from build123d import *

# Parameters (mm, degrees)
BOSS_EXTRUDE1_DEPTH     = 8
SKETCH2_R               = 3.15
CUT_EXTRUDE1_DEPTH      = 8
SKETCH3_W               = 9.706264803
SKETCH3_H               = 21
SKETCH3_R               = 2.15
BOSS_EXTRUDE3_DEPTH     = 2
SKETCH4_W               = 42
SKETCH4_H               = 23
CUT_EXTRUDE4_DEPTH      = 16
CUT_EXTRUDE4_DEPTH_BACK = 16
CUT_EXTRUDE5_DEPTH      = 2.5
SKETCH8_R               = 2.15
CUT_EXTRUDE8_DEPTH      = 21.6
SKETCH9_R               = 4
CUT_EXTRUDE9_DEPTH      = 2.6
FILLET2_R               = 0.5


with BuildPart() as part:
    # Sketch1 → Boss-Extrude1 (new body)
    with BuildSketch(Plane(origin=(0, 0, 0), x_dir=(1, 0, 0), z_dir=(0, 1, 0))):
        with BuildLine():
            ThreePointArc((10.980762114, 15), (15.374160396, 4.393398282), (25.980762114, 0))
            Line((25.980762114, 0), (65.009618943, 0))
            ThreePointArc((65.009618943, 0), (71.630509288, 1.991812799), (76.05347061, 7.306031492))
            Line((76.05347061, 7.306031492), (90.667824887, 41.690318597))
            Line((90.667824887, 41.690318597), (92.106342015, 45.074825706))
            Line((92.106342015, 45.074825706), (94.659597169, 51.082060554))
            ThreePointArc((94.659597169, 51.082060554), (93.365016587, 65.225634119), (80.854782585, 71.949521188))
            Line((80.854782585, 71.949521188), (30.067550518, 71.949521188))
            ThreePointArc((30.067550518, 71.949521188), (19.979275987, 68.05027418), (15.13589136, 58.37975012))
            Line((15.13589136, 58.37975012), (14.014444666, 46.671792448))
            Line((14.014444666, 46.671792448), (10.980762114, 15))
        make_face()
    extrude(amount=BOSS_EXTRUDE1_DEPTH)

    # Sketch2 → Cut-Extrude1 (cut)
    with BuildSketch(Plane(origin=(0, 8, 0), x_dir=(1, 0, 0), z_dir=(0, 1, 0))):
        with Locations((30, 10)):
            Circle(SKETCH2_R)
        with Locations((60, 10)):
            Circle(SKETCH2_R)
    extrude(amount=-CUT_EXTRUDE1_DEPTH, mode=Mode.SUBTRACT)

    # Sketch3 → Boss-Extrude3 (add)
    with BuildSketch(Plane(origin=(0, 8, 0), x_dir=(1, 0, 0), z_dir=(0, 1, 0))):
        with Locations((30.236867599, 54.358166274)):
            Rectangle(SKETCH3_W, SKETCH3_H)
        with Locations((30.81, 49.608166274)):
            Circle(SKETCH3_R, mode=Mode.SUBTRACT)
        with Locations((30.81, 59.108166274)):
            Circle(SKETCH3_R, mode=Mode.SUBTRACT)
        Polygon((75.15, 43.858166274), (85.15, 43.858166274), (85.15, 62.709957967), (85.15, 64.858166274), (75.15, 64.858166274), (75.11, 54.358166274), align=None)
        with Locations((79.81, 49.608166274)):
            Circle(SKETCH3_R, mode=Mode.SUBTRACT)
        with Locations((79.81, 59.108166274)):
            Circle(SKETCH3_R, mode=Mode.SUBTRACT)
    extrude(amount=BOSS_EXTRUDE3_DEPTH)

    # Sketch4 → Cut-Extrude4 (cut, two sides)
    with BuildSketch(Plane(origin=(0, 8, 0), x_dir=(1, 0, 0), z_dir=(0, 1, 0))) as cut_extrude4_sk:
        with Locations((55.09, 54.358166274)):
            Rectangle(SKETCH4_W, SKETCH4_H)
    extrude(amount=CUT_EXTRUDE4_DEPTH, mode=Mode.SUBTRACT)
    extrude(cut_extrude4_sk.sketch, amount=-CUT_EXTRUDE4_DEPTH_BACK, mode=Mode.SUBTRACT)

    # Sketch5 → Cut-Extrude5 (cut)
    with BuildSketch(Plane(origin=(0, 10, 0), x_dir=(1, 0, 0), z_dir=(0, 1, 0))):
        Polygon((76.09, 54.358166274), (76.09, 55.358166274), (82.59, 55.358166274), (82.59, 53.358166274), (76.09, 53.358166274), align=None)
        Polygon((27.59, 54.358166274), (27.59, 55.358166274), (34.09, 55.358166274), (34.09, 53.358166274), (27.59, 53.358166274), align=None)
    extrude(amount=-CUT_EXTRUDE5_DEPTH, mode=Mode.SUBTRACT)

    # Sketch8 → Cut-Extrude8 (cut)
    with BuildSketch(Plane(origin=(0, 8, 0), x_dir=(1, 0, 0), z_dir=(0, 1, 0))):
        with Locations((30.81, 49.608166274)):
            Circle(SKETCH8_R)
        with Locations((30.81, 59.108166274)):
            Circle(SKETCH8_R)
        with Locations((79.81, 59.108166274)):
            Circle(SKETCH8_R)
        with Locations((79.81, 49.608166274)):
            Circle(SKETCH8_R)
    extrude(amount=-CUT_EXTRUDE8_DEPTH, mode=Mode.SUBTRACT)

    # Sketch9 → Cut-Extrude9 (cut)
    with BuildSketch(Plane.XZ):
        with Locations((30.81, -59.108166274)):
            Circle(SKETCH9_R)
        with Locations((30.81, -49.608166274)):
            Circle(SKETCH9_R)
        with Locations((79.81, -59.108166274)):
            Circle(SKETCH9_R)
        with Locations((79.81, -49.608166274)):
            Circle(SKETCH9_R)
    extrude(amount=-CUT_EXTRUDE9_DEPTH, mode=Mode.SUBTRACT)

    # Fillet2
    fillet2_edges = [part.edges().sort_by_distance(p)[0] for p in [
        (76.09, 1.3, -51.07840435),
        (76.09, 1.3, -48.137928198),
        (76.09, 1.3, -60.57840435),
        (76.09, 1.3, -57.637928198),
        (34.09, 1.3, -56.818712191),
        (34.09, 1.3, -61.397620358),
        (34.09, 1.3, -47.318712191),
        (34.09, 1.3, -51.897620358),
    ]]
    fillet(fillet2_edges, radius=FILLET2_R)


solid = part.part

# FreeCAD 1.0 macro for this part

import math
import FreeCAD as App
import Part
import Sketcher
Q = App.Units.Quantity


def edges_at(feature, points):
    """Names of the edges that pass closest to the given points."""
    edges = feature.Shape.Edges
    near = lambda p: min(range(len(edges)), key=lambda i: edges[i].distToShape(Part.Vertex(*p))[0])
    return sorted({f"Edge{near(p) + 1}" for p in points})

doc = App.newDocument("Part")
body = doc.addObject("PartDesign::Body", "Body")

# Sketch on XZ plane
sketch1 = body.newObject("Sketcher::SketchObject", "Sketch")
sketch1.AttachmentSupport = (doc.getObject("XZ_Plane"), [""])
sketch1.MapMode = "FlatFace"
sketch1.addGeometry([
    Part.ArcOfCircle(Part.Circle(App.Vector(26, -15, 0), App.Vector(0, 0, 1), 15), math.radians(90), math.radians(180)),  # 0
    Part.LineSegment(App.Vector(26, 0, 0), App.Vector(65, 0, 0)),  # 1
    Part.ArcOfCircle(Part.Circle(App.Vector(65, -12, 0), App.Vector(0, 0, 1), 12), math.radians(23), math.radians(90)),  # 2
    Part.LineSegment(App.Vector(76.1, -7.3, 0), App.Vector(90.7, -41.7, 0)),  # 3
    Part.LineSegment(App.Vector(90.7, -41.7, 0), App.Vector(92.1, -45.1, 0)),  # 4
    Part.LineSegment(App.Vector(92.1, -45.1, 0), App.Vector(94.7, -51.1, 0)),  # 5
    Part.ArcOfCircle(Part.Circle(App.Vector(80.9, -56.9, 0), App.Vector(0, 0, 1), 15), math.radians(-90), math.radians(23)),  # 6
    Part.LineSegment(App.Vector(80.9, -71.9, 0), App.Vector(30.1, -71.9, 0)),  # 7
    Part.ArcOfCircle(Part.Circle(App.Vector(30.1, -56.9, 0), App.Vector(0, 0, 1), 15), math.radians(-175), math.radians(-90)),  # 8
    Part.LineSegment(App.Vector(15.1, -58.4, 0), App.Vector(14, -46.7, 0)),  # 9
    Part.LineSegment(App.Vector(14, -46.7, 0), App.Vector(11, -15, 0)),  # 10
], False)
sketch1.addConstraint([
    Sketcher.Constraint("Tangent", 0, 1, 1, 1),
    Sketcher.Constraint("Tangent", 1, 2, 2, 2),
    Sketcher.Constraint("Tangent", 2, 1, 3, 1),
    Sketcher.Constraint("Coincident", 3, 2, 4, 1),
    Sketcher.Constraint("Coincident", 4, 2, 5, 1),
    Sketcher.Constraint("Tangent", 5, 2, 6, 2),
    Sketcher.Constraint("Tangent", 6, 1, 7, 1),
    Sketcher.Constraint("Tangent", 7, 2, 8, 2),
    Sketcher.Constraint("Tangent", 8, 1, 9, 1),
    Sketcher.Constraint("Coincident", 9, 2, 10, 1),
    Sketcher.Constraint("Coincident", 10, 2, 0, 2),
    Sketcher.Constraint("Horizontal", 1),
    Sketcher.Constraint("Horizontal", 7),
    Sketcher.Constraint("Equal", 0, 6),
    Sketcher.Constraint("Equal", 6, 8),
    Sketcher.Constraint("PointOnObject", 0, 1, -1),
    Sketcher.Constraint("Parallel", 3, 4),
    Sketcher.Constraint("Parallel", 4, 5),
    Sketcher.Constraint("Parallel", 9, 10),
    Sketcher.Constraint("Horizontal", 0, 3, 10, 2),
    Sketcher.Constraint("Radius", 0, Q("15 mm")),
    Sketcher.Constraint("Radius", 2, Q("12 mm")),
    Sketcher.Constraint("Distance", 3, Q("37.36119 mm")),
    Sketcher.Constraint("Distance", 4, Q("3.677529 mm")),
    Sketcher.Constraint("Distance", 10, Q("31.816751 mm")),
    Sketcher.Constraint("DistanceX", 1, 1, 1, 2, Q("39.028857 mm")),
    Sketcher.Constraint("DistanceX", 7, 2, 7, 1, Q("50.787232 mm")),
    Sketcher.Constraint("DistanceX", -1, 1, 2, 3, Q("65.009619 mm")),
    Sketcher.Constraint("DistanceY", 6, 3, -1, 1, Q("56.949521 mm")),
    Sketcher.Constraint("DistanceX", -1, 1, 8, 3, Q("30.067551 mm")),
])
pad1 = body.newObject("PartDesign::Pad", "Pad")
pad1.Profile = sketch1
pad1.Length = 8
pad1.Reversed = True

# Sketch on XZ plane
sketch2 = body.newObject("Sketcher::SketchObject", "Sketch001")
sketch2.AttachmentSupport = (doc.getObject("XZ_Plane"), [""])
sketch2.MapMode = "FlatFace"
sketch2.AttachmentOffset = App.Placement(App.Vector(0, 0, -8), App.Rotation())
sketch2.addGeometry([
    Part.Circle(App.Vector(30, -10, 0), App.Vector(0, 0, 1), 3.1),
    Part.Circle(App.Vector(60, -10, 0), App.Vector(0, 0, 1), 3.1),
], False)
sketch2.addConstraint([
    Sketcher.Constraint("Equal", 0, 1),
    Sketcher.Constraint("Horizontal", 0, 3, 1, 3),
    Sketcher.Constraint("Diameter", 0, Q("6.3 mm")),
    Sketcher.Constraint("DistanceX", -1, 1, 0, 3, Q("30 mm")),
    Sketcher.Constraint("DistanceY", 0, 3, -1, 1, Q("10 mm")),
    Sketcher.Constraint("DistanceX", -1, 1, 1, 3, Q("60 mm")),
])
pocket1 = body.newObject("PartDesign::Pocket", "Pocket")
pocket1.Profile = sketch2
pocket1.Length = 8
pocket1.Reversed = True

# Sketch on XZ plane
sketch3 = body.newObject("Sketcher::SketchObject", "Sketch002")
sketch3.AttachmentSupport = (doc.getObject("XZ_Plane"), [""])
sketch3.MapMode = "FlatFace"
sketch3.AttachmentOffset = App.Placement(App.Vector(0, 0, -8), App.Rotation())
sketch3.addGeometry([
    Part.LineSegment(App.Vector(25.4, -64.9, 0), App.Vector(25.4, -43.9, 0)),  # 0
    Part.LineSegment(App.Vector(25.4, -43.9, 0), App.Vector(35.1, -43.9, 0)),  # 1
    Part.LineSegment(App.Vector(35.1, -43.9, 0), App.Vector(35.1, -64.9, 0)),  # 2
    Part.LineSegment(App.Vector(35.1, -64.9, 0), App.Vector(25.4, -64.9, 0)),  # 3
    Part.Circle(App.Vector(30.8, -49.6, 0), App.Vector(0, 0, 1), 2.1),  # 4
    Part.Circle(App.Vector(30.8, -59.1, 0), App.Vector(0, 0, 1), 2.1),  # 5
    Part.LineSegment(App.Vector(75.2, -43.9, 0), App.Vector(85.2, -43.9, 0)),  # 6
    Part.LineSegment(App.Vector(85.2, -43.9, 0), App.Vector(85.2, -64.9, 0)),  # 7
    Part.LineSegment(App.Vector(85.2, -64.9, 0), App.Vector(75.2, -64.9, 0)),  # 8
    Part.LineSegment(App.Vector(75.2, -64.9, 0), App.Vector(75.1, -54.4, 0)),  # 9
    Part.LineSegment(App.Vector(75.1, -54.4, 0), App.Vector(75.2, -43.9, 0)),  # 10
    Part.Circle(App.Vector(79.8, -49.6, 0), App.Vector(0, 0, 1), 2.1),  # 11
    Part.Circle(App.Vector(79.8, -59.1, 0), App.Vector(0, 0, 1), 2.1),  # 12
], False)
sketch3.addConstraint([
    Sketcher.Constraint("Coincident", 0, 2, 1, 1),
    Sketcher.Constraint("Coincident", 1, 2, 2, 1),
    Sketcher.Constraint("Coincident", 2, 2, 3, 1),
    Sketcher.Constraint("Coincident", 3, 2, 0, 1),
    Sketcher.Constraint("Coincident", 6, 2, 7, 1),
    Sketcher.Constraint("Coincident", 7, 2, 8, 1),
    Sketcher.Constraint("Coincident", 8, 2, 9, 1),
    Sketcher.Constraint("Coincident", 9, 2, 10, 1),
    Sketcher.Constraint("Coincident", 10, 2, 6, 1),
    Sketcher.Constraint("Vertical", 0),
    Sketcher.Constraint("Horizontal", 1),
    Sketcher.Constraint("Vertical", 2),
    Sketcher.Constraint("Horizontal", 3),
    Sketcher.Constraint("Horizontal", 6),
    Sketcher.Constraint("Vertical", 7),
    Sketcher.Constraint("Horizontal", 8),
    Sketcher.Constraint("Equal", 4, 5),
    Sketcher.Constraint("Equal", 5, 11),
    Sketcher.Constraint("Equal", 11, 12),
    Sketcher.Constraint("Horizontal", 4, 3, 11, 3),
    Sketcher.Constraint("Horizontal", 5, 3, 12, 3),
    Sketcher.Constraint("Horizontal", 1, 2, 6, 2),
    Sketcher.Constraint("Horizontal", 3, 2, 7, 2),
    Sketcher.Constraint("Vertical", 4, 3, 5, 3),
    Sketcher.Constraint("Vertical", 11, 3, 12, 3),
    Sketcher.Constraint("Vertical", 8, 2, 10, 2),
    Sketcher.Constraint("Equal", 9, 10),
    Sketcher.Constraint("Diameter", 4, Q("4.3 mm")),
    Sketcher.Constraint("DistanceX", 6, 1, 6, 2, Q("10 mm")),
    Sketcher.Constraint("DistanceY", 0, 1, 0, 2, Q("21 mm")),
    Sketcher.Constraint("DistanceX", 4, 3, 11, 3, Q("49 mm")),
    Sketcher.Constraint("DistanceY", 5, 3, 4, 3, Q("9.5 mm")),
    Sketcher.Constraint("DistanceX", 9, 2, 11, 3, Q("4.7 mm")),
    Sketcher.Constraint("DistanceX", -1, 1, 4, 3, Q("30.81 mm")),
    Sketcher.Constraint("DistanceX", -1, 1, 1, 2, Q("35.09 mm")),
    Sketcher.Constraint("DistanceX", -1, 1, 6, 2, Q("85.15 mm")),
    Sketcher.Constraint("DistanceY", 4, 3, 0, 2, Q("5.75 mm")),
    Sketcher.Constraint("DistanceX", 1, 1, 1, 2, Q("9.706265 mm")),
    Sketcher.Constraint("DistanceY", 4, 3, -1, 1, Q("49.608166 mm")),
])
pad2 = body.newObject("PartDesign::Pad", "Pad001")
pad2.Profile = sketch3
pad2.Length = 2
pad2.Reversed = True

# Sketch on XZ plane
sketch4 = body.newObject("Sketcher::SketchObject", "Sketch003")
sketch4.AttachmentSupport = (doc.getObject("XZ_Plane"), [""])
sketch4.MapMode = "FlatFace"
sketch4.AttachmentOffset = App.Placement(App.Vector(0, 0, -8), App.Rotation())
sketch4.addGeometry([
    Part.LineSegment(App.Vector(34, -66, 0), App.Vector(34, -43, 0)),
    Part.LineSegment(App.Vector(34, -43, 0), App.Vector(76, -43, 0)),
    Part.LineSegment(App.Vector(76, -43, 0), App.Vector(76, -66, 0)),
    Part.LineSegment(App.Vector(76, -66, 0), App.Vector(34, -66, 0)),
], False)
sketch4.addConstraint([
    Sketcher.Constraint("Coincident", 0, 2, 1, 1),
    Sketcher.Constraint("Coincident", 1, 2, 2, 1),
    Sketcher.Constraint("Coincident", 2, 2, 3, 1),
    Sketcher.Constraint("Coincident", 3, 2, 0, 1),
    Sketcher.Constraint("Vertical", 0),
    Sketcher.Constraint("Horizontal", 1),
    Sketcher.Constraint("Vertical", 2),
    Sketcher.Constraint("Horizontal", 3),
    Sketcher.Constraint("DistanceX", 1, 1, 1, 2, Q("42 mm")),
    Sketcher.Constraint("DistanceY", 0, 1, 0, 2, Q("23 mm")),
    Sketcher.Constraint("DistanceX", -1, 1, 0, 2, Q("34.09 mm")),
    Sketcher.Constraint("DistanceY", 0, 2, -1, 1, Q("42.858166 mm")),
])
pocket2 = body.newObject("PartDesign::Pocket", "Pocket001")
pocket2.Profile = sketch4
pocket2.Type = "ThroughAll"
pocket2.Midplane = True

# Sketch on XZ plane
sketch5 = body.newObject("Sketcher::SketchObject", "Sketch004")
sketch5.AttachmentSupport = (doc.getObject("XZ_Plane"), [""])
sketch5.MapMode = "FlatFace"
sketch5.AttachmentOffset = App.Placement(App.Vector(0, 0, -10), App.Rotation())
sketch5.addGeometry([
    Part.LineSegment(App.Vector(76.1, -55.4, 0), App.Vector(76.1, -53.4, 0)),  # 0
    Part.LineSegment(App.Vector(76.1, -53.4, 0), App.Vector(82.6, -53.4, 0)),  # 1
    Part.LineSegment(App.Vector(82.6, -53.4, 0), App.Vector(82.6, -55.4, 0)),  # 2
    Part.LineSegment(App.Vector(82.6, -55.4, 0), App.Vector(76.1, -55.4, 0)),  # 3
    Part.LineSegment(App.Vector(27.6, -55.4, 0), App.Vector(27.6, -53.4, 0)),  # 4
    Part.LineSegment(App.Vector(27.6, -53.4, 0), App.Vector(34.1, -53.4, 0)),  # 5
    Part.LineSegment(App.Vector(34.1, -53.4, 0), App.Vector(34.1, -55.4, 0)),  # 6
    Part.LineSegment(App.Vector(34.1, -55.4, 0), App.Vector(27.6, -55.4, 0)),  # 7
], False)
sketch5.addConstraint([
    Sketcher.Constraint("Coincident", 0, 2, 1, 1),
    Sketcher.Constraint("Coincident", 1, 2, 2, 1),
    Sketcher.Constraint("Coincident", 2, 2, 3, 1),
    Sketcher.Constraint("Coincident", 3, 2, 0, 1),
    Sketcher.Constraint("Coincident", 4, 2, 5, 1),
    Sketcher.Constraint("Coincident", 5, 2, 6, 1),
    Sketcher.Constraint("Coincident", 6, 2, 7, 1),
    Sketcher.Constraint("Coincident", 7, 2, 4, 1),
    Sketcher.Constraint("Vertical", 0),
    Sketcher.Constraint("Horizontal", 1),
    Sketcher.Constraint("Vertical", 2),
    Sketcher.Constraint("Horizontal", 3),
    Sketcher.Constraint("Vertical", 4),
    Sketcher.Constraint("Horizontal", 5),
    Sketcher.Constraint("Vertical", 6),
    Sketcher.Constraint("Horizontal", 7),
    Sketcher.Constraint("Horizontal", 1, 2, 4, 2),
    Sketcher.Constraint("Horizontal", 3, 2, 6, 2),
    Sketcher.Constraint("Equal", 3, 5),
    Sketcher.Constraint("DistanceY", 0, 1, 0, 2, Q("2 mm")),
    Sketcher.Constraint("DistanceX", 1, 1, 1, 2, Q("6.5 mm")),
    Sketcher.Constraint("DistanceX", 4, 2, 1, 2, Q("55 mm")),
    Sketcher.Constraint("DistanceX", -1, 1, 0, 2, Q("76.09 mm")),
    Sketcher.Constraint("DistanceY", 0, 2, -1, 1, Q("53.358166 mm")),
])
pocket3 = body.newObject("PartDesign::Pocket", "Pocket002")
pocket3.Profile = sketch5
pocket3.Length = 2.5
pocket3.Reversed = True

# Sketch on XZ plane
sketch6 = body.newObject("Sketcher::SketchObject", "Sketch005")
sketch6.AttachmentSupport = (doc.getObject("XZ_Plane"), [""])
sketch6.MapMode = "FlatFace"
sketch6.AttachmentOffset = App.Placement(App.Vector(0, 0, -8), App.Rotation())
sketch6.addGeometry([
    Part.Circle(App.Vector(30.8, -49.6, 0), App.Vector(0, 0, 1), 2.1),
    Part.Circle(App.Vector(30.8, -59.1, 0), App.Vector(0, 0, 1), 2.1),
    Part.Circle(App.Vector(79.8, -59.1, 0), App.Vector(0, 0, 1), 2.1),
    Part.Circle(App.Vector(79.8, -49.6, 0), App.Vector(0, 0, 1), 2.1),
], False)
sketch6.addConstraint([
    Sketcher.Constraint("Equal", 0, 1),
    Sketcher.Constraint("Equal", 1, 2),
    Sketcher.Constraint("Equal", 2, 3),
    Sketcher.Constraint("Horizontal", 1, 3, 2, 3),
    Sketcher.Constraint("Horizontal", 0, 3, 3, 3),
    Sketcher.Constraint("Vertical", 0, 3, 1, 3),
    Sketcher.Constraint("Vertical", 2, 3, 3, 3),
    Sketcher.Constraint("Diameter", 0, Q("4.3 mm")),
    Sketcher.Constraint("DistanceX", 1, 3, 2, 3, Q("49 mm")),
    Sketcher.Constraint("DistanceY", 1, 3, 0, 3, Q("9.5 mm")),
    Sketcher.Constraint("DistanceX", -1, 1, 0, 3, Q("30.81 mm")),
    Sketcher.Constraint("DistanceY", 0, 3, -1, 1, Q("49.608166 mm")),
])
pocket4 = body.newObject("PartDesign::Pocket", "Pocket003")
pocket4.Profile = sketch6
pocket4.Length = 21.6
pocket4.Reversed = True

# Sketch on XZ plane
sketch7 = body.newObject("Sketcher::SketchObject", "Sketch006")
sketch7.AttachmentSupport = (doc.getObject("XZ_Plane"), [""])
sketch7.MapMode = "FlatFace"
sketch7.addGeometry([
    Part.Circle(App.Vector(30.8, -59.1, 0), App.Vector(0, 0, 1), 4),
    Part.Circle(App.Vector(30.8, -49.6, 0), App.Vector(0, 0, 1), 4),
    Part.Circle(App.Vector(79.8, -59.1, 0), App.Vector(0, 0, 1), 4),
    Part.Circle(App.Vector(79.8, -49.6, 0), App.Vector(0, 0, 1), 4),
], False)
sketch7.addConstraint([
    Sketcher.Constraint("Equal", 0, 1),
    Sketcher.Constraint("Equal", 1, 2),
    Sketcher.Constraint("Equal", 2, 3),
    Sketcher.Constraint("Horizontal", 0, 3, 2, 3),
    Sketcher.Constraint("Horizontal", 1, 3, 3, 3),
    Sketcher.Constraint("Vertical", 0, 3, 1, 3),
    Sketcher.Constraint("Vertical", 2, 3, 3, 3),
    Sketcher.Constraint("Diameter", 0, Q("8 mm")),
    Sketcher.Constraint("DistanceX", 0, 3, 2, 3, Q("49 mm")),
    Sketcher.Constraint("DistanceY", 0, 3, 1, 3, Q("9.5 mm")),
    Sketcher.Constraint("DistanceX", -1, 1, 0, 3, Q("30.81 mm")),
    Sketcher.Constraint("DistanceY", 0, 3, -1, 1, Q("59.108166 mm")),
])
pocket5 = body.newObject("PartDesign::Pocket", "Pocket004")
pocket5.Profile = sketch7
pocket5.Length = 2.6
doc.recompute()

fillet = body.newObject("PartDesign::Fillet", "Fillet")
fillet.Base = (pocket5, edges_at(pocket5, [
    (76.09, 1.3, -51.078),
    (76.09, 1.3, -48.138),
    (76.09, 1.3, -60.578),
    (76.09, 1.3, -57.638),
    (34.09, 1.3, -56.819),
    (34.09, 1.3, -61.398),
    (34.09, 1.3, -47.319),
    (34.09, 1.3, -51.898),
]))
fillet.Radius = 0.5

doc.recompute()
